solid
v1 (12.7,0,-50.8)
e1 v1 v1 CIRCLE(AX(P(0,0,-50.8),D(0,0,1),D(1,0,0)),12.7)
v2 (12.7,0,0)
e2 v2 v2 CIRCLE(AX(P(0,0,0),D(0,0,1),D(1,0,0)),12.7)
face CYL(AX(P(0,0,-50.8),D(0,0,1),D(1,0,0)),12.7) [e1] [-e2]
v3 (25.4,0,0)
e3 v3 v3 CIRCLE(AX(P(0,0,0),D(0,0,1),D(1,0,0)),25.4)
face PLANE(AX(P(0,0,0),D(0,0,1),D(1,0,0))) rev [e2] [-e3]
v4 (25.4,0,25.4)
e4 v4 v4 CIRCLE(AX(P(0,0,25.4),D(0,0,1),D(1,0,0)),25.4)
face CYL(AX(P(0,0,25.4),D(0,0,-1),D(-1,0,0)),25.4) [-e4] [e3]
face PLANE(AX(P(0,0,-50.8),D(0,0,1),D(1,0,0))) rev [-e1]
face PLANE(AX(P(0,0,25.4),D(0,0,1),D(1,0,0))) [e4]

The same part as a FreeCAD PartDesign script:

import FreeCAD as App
import Part
import Sketcher

V = App.Vector
Q = App.Units.Quantity

doc = App.newDocument("Part")
params = doc.addObject("Spreadsheet::Sheet", "Params")
for row, (alias, value) in enumerate([
    ("sketch1_diameter", "2 in"),
    ("pad1_length", "1 in"),
    ("sketch2_diameter", "1 in"),
    ("pad2_length", "2 in"),
], start=1):
    params.set(f"A{row}", alias)
    params.set(f"B{row}", "=" + value)
    params.setAlias(f"B{row}", alias)

body = doc.addObject("PartDesign::Body", "Body")

# Sketch on XY plane
sketch1 = body.newObject("Sketcher::SketchObject", "Sketch")
sketch1.AttachmentSupport = (doc.getObject("XY_Plane"), [""])
sketch1.MapMode = "FlatFace"
sketch1.addGeometry(Part.Circle(V(0, 0, 0), V(0, 0, 1), 25.4), False)
sketch1.addConstraint([
    Sketcher.Constraint("Coincident", 0, 3, -1, 1),
    Sketcher.Constraint("Diameter", 0, Q("2 in")),
])
sketch1.setExpression("Constraints[1]", "Params.sketch1_diameter")
pad1 = body.newObject("PartDesign::Pad", "Pad")
pad1.Profile = sketch1
pad1.setExpression("Length", "Params.pad1_length")

# Sketch on XY plane
sketch2 = body.newObject("Sketcher::SketchObject", "Sketch001")
sketch2.AttachmentSupport = (doc.getObject("XY_Plane"), [""])
sketch2.MapMode = "FlatFace"
sketch2.addGeometry(Part.Circle(V(0, 0, 0), V(0, 0, 1), 12.7), False)
sketch2.addConstraint([
    Sketcher.Constraint("Coincident", 0, 3, -1, 1),
    Sketcher.Constraint("Diameter", 0, Q("1 in")),
])
sketch2.setExpression("Constraints[1]", "Params.sketch2_diameter")
pad2 = body.newObject("PartDesign::Pad", "Pad001")
pad2.Profile = sketch2
pad2.setExpression("Length", "Params.pad2_length")
pad2.Reversed = True

doc.recompute()
